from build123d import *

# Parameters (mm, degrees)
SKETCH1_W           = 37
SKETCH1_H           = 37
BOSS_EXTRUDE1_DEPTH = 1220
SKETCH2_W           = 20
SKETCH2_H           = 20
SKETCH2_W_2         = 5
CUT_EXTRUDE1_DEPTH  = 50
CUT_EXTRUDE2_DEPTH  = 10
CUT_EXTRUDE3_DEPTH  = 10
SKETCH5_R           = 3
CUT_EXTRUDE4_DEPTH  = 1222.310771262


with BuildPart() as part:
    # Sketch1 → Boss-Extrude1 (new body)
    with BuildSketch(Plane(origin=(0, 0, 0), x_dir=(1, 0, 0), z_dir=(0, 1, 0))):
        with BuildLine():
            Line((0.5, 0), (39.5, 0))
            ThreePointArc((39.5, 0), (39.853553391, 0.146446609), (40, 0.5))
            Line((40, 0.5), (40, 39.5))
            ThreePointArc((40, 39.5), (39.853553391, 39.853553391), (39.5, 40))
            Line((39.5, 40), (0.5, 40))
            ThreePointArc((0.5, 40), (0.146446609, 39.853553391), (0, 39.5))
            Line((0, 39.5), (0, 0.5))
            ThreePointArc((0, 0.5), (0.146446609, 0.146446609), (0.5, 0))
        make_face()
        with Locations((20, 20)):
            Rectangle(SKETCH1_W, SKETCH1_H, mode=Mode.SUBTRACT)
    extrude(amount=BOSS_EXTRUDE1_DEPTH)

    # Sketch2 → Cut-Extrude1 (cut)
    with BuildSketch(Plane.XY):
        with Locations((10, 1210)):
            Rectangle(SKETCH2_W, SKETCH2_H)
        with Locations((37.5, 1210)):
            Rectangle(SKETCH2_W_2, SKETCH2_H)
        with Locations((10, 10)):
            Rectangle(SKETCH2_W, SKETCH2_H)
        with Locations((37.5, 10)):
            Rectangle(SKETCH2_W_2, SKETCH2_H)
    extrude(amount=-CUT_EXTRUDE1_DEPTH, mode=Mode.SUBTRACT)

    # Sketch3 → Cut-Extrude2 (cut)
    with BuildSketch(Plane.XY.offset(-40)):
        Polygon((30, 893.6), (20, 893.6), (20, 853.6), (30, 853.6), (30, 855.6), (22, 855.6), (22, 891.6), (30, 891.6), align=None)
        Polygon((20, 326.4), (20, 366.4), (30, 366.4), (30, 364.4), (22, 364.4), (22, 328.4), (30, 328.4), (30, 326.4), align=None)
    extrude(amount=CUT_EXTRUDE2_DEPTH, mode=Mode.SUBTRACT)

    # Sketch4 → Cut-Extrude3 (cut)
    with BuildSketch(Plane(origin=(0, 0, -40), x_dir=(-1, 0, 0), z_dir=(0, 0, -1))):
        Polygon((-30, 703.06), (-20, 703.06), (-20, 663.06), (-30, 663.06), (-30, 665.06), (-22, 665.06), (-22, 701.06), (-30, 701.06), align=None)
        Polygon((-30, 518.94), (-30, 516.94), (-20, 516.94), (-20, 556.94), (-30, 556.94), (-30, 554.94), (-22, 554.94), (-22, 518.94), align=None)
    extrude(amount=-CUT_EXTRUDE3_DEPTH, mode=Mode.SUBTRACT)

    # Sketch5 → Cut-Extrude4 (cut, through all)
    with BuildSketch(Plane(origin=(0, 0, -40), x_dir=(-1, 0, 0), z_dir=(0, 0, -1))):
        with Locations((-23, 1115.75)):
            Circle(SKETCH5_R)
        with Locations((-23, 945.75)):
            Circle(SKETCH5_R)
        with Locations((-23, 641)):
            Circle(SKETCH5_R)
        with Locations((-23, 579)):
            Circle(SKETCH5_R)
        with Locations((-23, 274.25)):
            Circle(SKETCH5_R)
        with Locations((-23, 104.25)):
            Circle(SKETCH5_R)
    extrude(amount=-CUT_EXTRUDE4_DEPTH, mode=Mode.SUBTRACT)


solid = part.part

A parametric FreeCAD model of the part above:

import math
import FreeCAD as App
import Part
import Sketcher
from FreeCAD import Vector


def add_polygon(sketch, points):
    """Adds a closed chain of lines whose ends are joined by coincident constraints."""
    first, n = sketch.GeometryCount, len(points)
    for a, b in zip(points, points[1:] + points[:1]):
        sketch.addGeometry(Part.LineSegment(App.Vector(*a, 0), App.Vector(*b, 0)), False)
    for i in range(n):
        sketch.addConstraint(Sketcher.Constraint("Coincident", first + i, 2, first + (i + 1) % n, 1))

doc = App.newDocument("Part")
body = doc.addObject("PartDesign::Body", "Body")

# Sketch on XZ plane
sketch1 = body.newObject("Sketcher::SketchObject", "Sketch")
sketch1.AttachmentSupport = (doc.getObject("XZ_Plane"), [""])
sketch1.MapMode = "FlatFace"
sketch1.addGeometry(Part.LineSegment(Vector(0.5, 0, 0), Vector(39.5, 0, 0)), False)  # 0
sketch1.addGeometry(Part.ArcOfCircle(Part.Circle(Vector(39.5, -0.5, 0), Vector(0, 0, 1), 0.5), math.radians(0), math.radians(90)), False)  # 1
sketch1.addGeometry(Part.LineSegment(Vector(40, -0.5, 0), Vector(40, -39.5, 0)), False)  # 2
sketch1.addGeometry(Part.ArcOfCircle(Part.Circle(Vector(39.5, -39.5, 0), Vector(0, 0, 1), 0.5), math.radians(-90), math.radians(0)), False)  # 3
sketch1.addGeometry(Part.LineSegment(Vector(39.5, -40, 0), Vector(0.5, -40, 0)), False)  # 4
sketch1.addGeometry(Part.ArcOfCircle(Part.Circle(Vector(0.5, -39.5, 0), Vector(0, 0, 1), 0.5), math.radians(180), math.radians(270)), False)  # 5
sketch1.addGeometry(Part.LineSegment(Vector(0, -39.5, 0), Vector(0, -0.5, 0)), False)  # 6
sketch1.addGeometry(Part.ArcOfCircle(Part.Circle(Vector(0.5, -0.5, 0), Vector(0, 0, 1), 0.5), math.radians(90), math.radians(180)), False)  # 7
add_polygon(sketch1, [(38.5, -1.5), (1.5, -1.5), (1.5, -38.5), (38.5, -38.5)])  # lines 8-11
sketch1.addConstraint([
    Sketcher.Constraint("Tangent", 0, 2, 1, 2),
    Sketcher.Constraint("Tangent", 1, 1, 2, 1),
    Sketcher.Constraint("Tangent", 2, 2, 3, 2),
    Sketcher.Constraint("Tangent", 3, 1, 4, 1),
    Sketcher.Constraint("Tangent", 4, 2, 5, 2),
    Sketcher.Constraint("Tangent", 5, 1, 6, 1),
    Sketcher.Constraint("Tangent", 6, 2, 7, 2),
    Sketcher.Constraint("Tangent", 7, 1, 0, 1),
    Sketcher.Constraint("Horizontal", 0),
    Sketcher.Constraint("Vertical", 2),
    Sketcher.Constraint("Horizontal", 4),
    Sketcher.Constraint("Vertical", 6),
    Sketcher.Constraint("Horizontal", 8),
    Sketcher.Constraint("Vertical", 9),
    Sketcher.Constraint("Horizontal", 10),
    Sketcher.Constraint("Vertical", 11),
    Sketcher.Constraint("Equal", 1, 3),
    Sketcher.Constraint("Equal", 3, 5),
    Sketcher.Constraint("Equal", 5, 7),
    Sketcher.Constraint("PointOnObject", 0, 2, -1),
    Sketcher.Constraint("PointOnObject", 5, 1, -2),
    Sketcher.Constraint("Equal", 4, 2),
    Sketcher.Constraint("Equal", 10, 9),
    Sketcher.Constraint("Radius", 1, 0.5),
    Sketcher.Constraint("DistanceX", 0, 1, 0, 2, 39.0),
    Sketcher.Constraint("DistanceX", 8, 2, 8, 1, 37.0),
    Sketcher.Constraint("DistanceX", 7, 3, 8, 2, 1.0),
    Sketcher.Constraint("DistanceY", 8, 2, 7, 3, 1.0),
])
pad1 = body.newObject("PartDesign::Pad", "Pad")
pad1.Profile = sketch1
pad1.Length = 1220
pad1.Reversed = True

# Sketch on XY plane
sketch2 = body.newObject("Sketcher::SketchObject", "Sketch001")
sketch2.AttachmentSupport = (doc.getObject("XY_Plane"), [""])
sketch2.MapMode = "FlatFace"
add_polygon(sketch2, [(0, 1220), (0, 1200), (20, 1200), (20, 1220)])  # lines 0-3
add_polygon(sketch2, [(35, 1220), (35, 1200), (40, 1200), (40, 1220)])  # lines 4-7
add_polygon(sketch2, [(0, 20), (0, 0), (20, 0), (20, 20)])  # lines 8-11
add_polygon(sketch2, [(35, 20), (35, 0), (40, 0), (40, 20)])  # lines 12-15
sketch2.addConstraint([
    Sketcher.Constraint("Vertical", 0),
    Sketcher.Constraint("Horizontal", 1),
    Sketcher.Constraint("Vertical", 2),
    Sketcher.Constraint("Horizontal", 3),
    Sketcher.Constraint("Vertical", 4),
    Sketcher.Constraint("Horizontal", 5),
    Sketcher.Constraint("Vertical", 6),
    Sketcher.Constraint("Horizontal", 7),
    Sketcher.Constraint("Vertical", 8),
    Sketcher.Constraint("Horizontal", 9),
    Sketcher.Constraint("Vertical", 10),
    Sketcher.Constraint("Horizontal", 11),
    Sketcher.Constraint("Vertical", 12),
    Sketcher.Constraint("Horizontal", 13),
    Sketcher.Constraint("Vertical", 14),
    Sketcher.Constraint("Horizontal", 15),
    Sketcher.Constraint("Coincident", 8, 2, -1, 1),
    Sketcher.Constraint("PointOnObject", 0, 2, -2),
    Sketcher.Constraint("PointOnObject", 12, 2, -1),
    Sketcher.Constraint("Horizontal", 1, 2, 4, 2),
    Sketcher.Constraint("Horizontal", 3, 2, 6, 2),
    Sketcher.Constraint("Horizontal", 11, 2, 14, 2),
    Sketcher.Constraint("Vertical", 2, 2, 9, 2),
    Sketcher.Constraint("Vertical", 7, 2, 12, 2),
    Sketcher.Constraint("Vertical", 6, 2, 13, 2),
    Sketcher.Constraint("Equal", 11, 0),
    Sketcher.Constraint("Equal", 6, 8),
    Sketcher.Constraint("DistanceX", 1, 1, 1, 2, 20.0),
    Sketcher.Constraint("DistanceX", 5, 1, 5, 2, 5.0),
    Sketcher.Constraint("DistanceY", -1, 1, 0, 2, 1200.0),
    Sketcher.Constraint("DistanceX", -1, 1, 4, 2, 35.0),
])
pocket1 = body.newObject("PartDesign::Pocket", "Pocket")
pocket1.Profile = sketch2
pocket1.Length = 50

# Sketch on XY plane
sketch3 = body.newObject("Sketcher::SketchObject", "Sketch002")
sketch3.AttachmentSupport = (doc.getObject("XY_Plane"), [""])
sketch3.MapMode = "FlatFace"
sketch3.AttachmentOffset = App.Placement(Vector(0, 0, -40), App.Rotation())
add_polygon(sketch3, [(30, 893.6), (20, 893.6), (20, 853.6), (30, 853.6), (30, 855.6), (22, 855.6), (22, 891.6), (30, 891.6)])  # lines 0-7
add_polygon(sketch3, [(20, 366.4), (20, 326.4), (30, 326.4), (30, 328.4), (22, 328.4), (22, 364.4), (30, 364.4), (30, 366.4)])  # lines 8-15
sketch3.addConstraint([
    Sketcher.Constraint("Horizontal", 0),
    Sketcher.Constraint("Vertical", 1),
    Sketcher.Constraint("Horizontal", 2),
    Sketcher.Constraint("Vertical", 3),
    Sketcher.Constraint("Horizontal", 4),
    Sketcher.Constraint("Vertical", 5),
    Sketcher.Constraint("Horizontal", 6),
    Sketcher.Constraint("Vertical", 7),
    Sketcher.Constraint("Vertical", 8),
    Sketcher.Constraint("Horizontal", 9),
    Sketcher.Constraint("Vertical", 10),
    Sketcher.Constraint("Horizontal", 11),
    Sketcher.Constraint("Vertical", 12),
    Sketcher.Constraint("Horizontal", 13),
    Sketcher.Constraint("Vertical", 14),
    Sketcher.Constraint("Horizontal", 15),
    Sketcher.Constraint("Vertical", 3, 2, 6, 2),
    Sketcher.Constraint("Vertical", 1, 2, 8, 2),
    Sketcher.Constraint("Vertical", 7, 2, 9, 2),
    Sketcher.Constraint("Vertical", 5, 2, 11, 2),
    Sketcher.Constraint("Vertical", 10, 2, 13, 2),
    Sketcher.Constraint("Equal", 3, 7),
    Sketcher.Constraint("Equal", 1, 8),
    Sketcher.Constraint("Equal", 7, 10),
    Sketcher.Constraint("Equal", 5, 12),
    Sketcher.Constraint("DistanceX", 0, 2, 0, 1, 10.0),
    Sketcher.Constraint("DistanceX", 4, 2, 4, 1, 8.0),
    Sketcher.Constraint("DistanceY", 1, 2, 1, 1, 40.0),
    Sketcher.Constraint("DistanceY", 3, 1, 3, 2, 2.0),
    Sketcher.Constraint("DistanceX", -1, 1, 0, 2, 20.0),
    Sketcher.Constraint("DistanceY", -1, 1, 0, 2, 893.6),
    Sketcher.Constraint("DistanceY", -1, 1, 8, 2, 326.4),
])
pocket2 = body.newObject("PartDesign::Pocket", "Pocket001")
pocket2.Profile = sketch3
pocket2.Length = 10
pocket2.Reversed = True

# Sketch on XY plane
sketch4 = body.newObject("Sketcher::SketchObject", "Sketch003")
sketch4.AttachmentSupport = (doc.getObject("XY_Plane"), [""])
sketch4.MapMode = "FlatFace"
sketch4.AttachmentOffset = App.Placement(Vector(0, 0, -40), App.Rotation())
add_polygon(sketch4, [(20, 703.06), (30, 703.06), (30, 701.06), (22, 701.06), (22, 665.06), (30, 665.06), (30, 663.06), (20, 663.06)])  # lines 0-7
add_polygon(sketch4, [(30, 518.94), (30, 516.94), (20, 516.94), (20, 556.94), (30, 556.94), (30, 554.94), (22, 554.94), (22, 518.94)])  # lines 8-15
sketch4.addConstraint([
    Sketcher.Constraint("Horizontal", 0),
    Sketcher.Constraint("Vertical", 1),
    Sketcher.Constraint("Horizontal", 2),
    Sketcher.Constraint("Vertical", 3),
    Sketcher.Constraint("Horizontal", 4),
    Sketcher.Constraint("Vertical", 5),
    Sketcher.Constraint("Horizontal", 6),
    Sketcher.Constraint("Vertical", 7),
    Sketcher.Constraint("Vertical", 8),
    Sketcher.Constraint("Horizontal", 9),
    Sketcher.Constraint("Vertical", 10),
    Sketcher.Constraint("Horizontal", 11),
    Sketcher.Constraint("Vertical", 12),
    Sketcher.Constraint("Horizontal", 13),
    Sketcher.Constraint("Vertical", 14),
    Sketcher.Constraint("Horizontal", 15),
    Sketcher.Constraint("Vertical", 1, 2, 4, 2),
    Sketcher.Constraint("Vertical", 5, 2, 8, 2),
    Sketcher.Constraint("Vertical", 7, 2, 9, 2),
    Sketcher.Constraint("Vertical", 8, 2, 11, 2),
    Sketcher.Constraint("Vertical", 3, 2, 13, 2),
    Sketcher.Constraint("Equal", 1, 5),
    Sketcher.Constraint("Equal", 5, 8),
    Sketcher.Constraint("Equal", 7, 10),
    Sketcher.Constraint("Equal", 8, 12),
    Sketcher.Constraint("DistanceX", 0, 1, 0, 2, 10.0),
    Sketcher.Constraint("DistanceX", 2, 2, 2, 1, 8.0),
    Sketcher.Constraint("DistanceY", 1, 2, 1, 1, 2.0),
    Sketcher.Constraint("DistanceY", 3, 2, 3, 1, 36.0),
    Sketcher.Constraint("DistanceX", -1, 1, 0, 2, 30.0),
    Sketcher.Constraint("DistanceY", -1, 1, 0, 2, 703.06),
    Sketcher.Constraint("DistanceY", -1, 1, 8, 2, 516.94),
])
pocket3 = body.newObject("PartDesign::Pocket", "Pocket002")
pocket3.Profile = sketch4
pocket3.Length = 10
pocket3.Reversed = True

# Sketch on XY plane
sketch5 = body.newObject("Sketcher::SketchObject", "Sketch004")
sketch5.AttachmentSupport = (doc.getObject("XY_Plane"), [""])
sketch5.MapMode = "FlatFace"
sketch5.AttachmentOffset = App.Placement(Vector(0, 0, -40), App.Rotation())
sketch5.addGeometry([
    Part.Circle(Vector(23, 1115.75, 0), Vector(0, 0, 1), 3),  # 0
    Part.Circle(Vector(23, 945.75, 0), Vector(0, 0, 1), 3),  # 1
    Part.Circle(Vector(23, 641, 0), Vector(0, 0, 1), 3),  # 2
    Part.Circle(Vector(23, 579, 0), Vector(0, 0, 1), 3),  # 3
    Part.Circle(Vector(23, 274.25, 0), Vector(0, 0, 1), 3),  # 4
    Part.Circle(Vector(23, 104.25, 0), Vector(0, 0, 1), 3),  # 5
], False)
sketch5.addConstraint([
    Sketcher.Constraint("Equal", 0, 1),
    Sketcher.Constraint("Equal", 1, 2),
    Sketcher.Constraint("Equal", 2, 3),
    Sketcher.Constraint("Equal", 3, 4),
    Sketcher.Constraint("Equal", 4, 5),
    Sketcher.Constraint("Vertical", 0, 3, 1, 3),
    Sketcher.Constraint("Vertical", 1, 3, 2, 3),
    Sketcher.Constraint("Vertical", 2, 3, 3, 3),
    Sketcher.Constraint("Vertical", 3, 3, 4, 3),
    Sketcher.Constraint("Vertical", 4, 3, 5, 3),
    Sketcher.Constraint("Diameter", 0, 6.0),
    Sketcher.Constraint("DistanceX", -1, 1, 0, 3, 23.0),
    Sketcher.Constraint("DistanceY", -1, 1, 2, 3, 641.0),
    Sketcher.Constraint("DistanceY", -1, 1, 3, 3, 579.0),
    Sketcher.Constraint("DistanceY", 1, 3, 0, 3, 170.0),
    Sketcher.Constraint("DistanceY", 5, 3, 4, 3, 170.0),
    Sketcher.Constraint("DistanceY", 4, 3, 1, 3, 671.5),
    Sketcher.Constraint("DistanceY", -1, 1, 0, 3, 1115.75),
])
pocket4 = body.newObject("PartDesign::Pocket", "Pocket003")
pocket4.Profile = sketch5
pocket4.Type = "ThroughAll"
pocket4.Reversed = True

doc.recompute()
